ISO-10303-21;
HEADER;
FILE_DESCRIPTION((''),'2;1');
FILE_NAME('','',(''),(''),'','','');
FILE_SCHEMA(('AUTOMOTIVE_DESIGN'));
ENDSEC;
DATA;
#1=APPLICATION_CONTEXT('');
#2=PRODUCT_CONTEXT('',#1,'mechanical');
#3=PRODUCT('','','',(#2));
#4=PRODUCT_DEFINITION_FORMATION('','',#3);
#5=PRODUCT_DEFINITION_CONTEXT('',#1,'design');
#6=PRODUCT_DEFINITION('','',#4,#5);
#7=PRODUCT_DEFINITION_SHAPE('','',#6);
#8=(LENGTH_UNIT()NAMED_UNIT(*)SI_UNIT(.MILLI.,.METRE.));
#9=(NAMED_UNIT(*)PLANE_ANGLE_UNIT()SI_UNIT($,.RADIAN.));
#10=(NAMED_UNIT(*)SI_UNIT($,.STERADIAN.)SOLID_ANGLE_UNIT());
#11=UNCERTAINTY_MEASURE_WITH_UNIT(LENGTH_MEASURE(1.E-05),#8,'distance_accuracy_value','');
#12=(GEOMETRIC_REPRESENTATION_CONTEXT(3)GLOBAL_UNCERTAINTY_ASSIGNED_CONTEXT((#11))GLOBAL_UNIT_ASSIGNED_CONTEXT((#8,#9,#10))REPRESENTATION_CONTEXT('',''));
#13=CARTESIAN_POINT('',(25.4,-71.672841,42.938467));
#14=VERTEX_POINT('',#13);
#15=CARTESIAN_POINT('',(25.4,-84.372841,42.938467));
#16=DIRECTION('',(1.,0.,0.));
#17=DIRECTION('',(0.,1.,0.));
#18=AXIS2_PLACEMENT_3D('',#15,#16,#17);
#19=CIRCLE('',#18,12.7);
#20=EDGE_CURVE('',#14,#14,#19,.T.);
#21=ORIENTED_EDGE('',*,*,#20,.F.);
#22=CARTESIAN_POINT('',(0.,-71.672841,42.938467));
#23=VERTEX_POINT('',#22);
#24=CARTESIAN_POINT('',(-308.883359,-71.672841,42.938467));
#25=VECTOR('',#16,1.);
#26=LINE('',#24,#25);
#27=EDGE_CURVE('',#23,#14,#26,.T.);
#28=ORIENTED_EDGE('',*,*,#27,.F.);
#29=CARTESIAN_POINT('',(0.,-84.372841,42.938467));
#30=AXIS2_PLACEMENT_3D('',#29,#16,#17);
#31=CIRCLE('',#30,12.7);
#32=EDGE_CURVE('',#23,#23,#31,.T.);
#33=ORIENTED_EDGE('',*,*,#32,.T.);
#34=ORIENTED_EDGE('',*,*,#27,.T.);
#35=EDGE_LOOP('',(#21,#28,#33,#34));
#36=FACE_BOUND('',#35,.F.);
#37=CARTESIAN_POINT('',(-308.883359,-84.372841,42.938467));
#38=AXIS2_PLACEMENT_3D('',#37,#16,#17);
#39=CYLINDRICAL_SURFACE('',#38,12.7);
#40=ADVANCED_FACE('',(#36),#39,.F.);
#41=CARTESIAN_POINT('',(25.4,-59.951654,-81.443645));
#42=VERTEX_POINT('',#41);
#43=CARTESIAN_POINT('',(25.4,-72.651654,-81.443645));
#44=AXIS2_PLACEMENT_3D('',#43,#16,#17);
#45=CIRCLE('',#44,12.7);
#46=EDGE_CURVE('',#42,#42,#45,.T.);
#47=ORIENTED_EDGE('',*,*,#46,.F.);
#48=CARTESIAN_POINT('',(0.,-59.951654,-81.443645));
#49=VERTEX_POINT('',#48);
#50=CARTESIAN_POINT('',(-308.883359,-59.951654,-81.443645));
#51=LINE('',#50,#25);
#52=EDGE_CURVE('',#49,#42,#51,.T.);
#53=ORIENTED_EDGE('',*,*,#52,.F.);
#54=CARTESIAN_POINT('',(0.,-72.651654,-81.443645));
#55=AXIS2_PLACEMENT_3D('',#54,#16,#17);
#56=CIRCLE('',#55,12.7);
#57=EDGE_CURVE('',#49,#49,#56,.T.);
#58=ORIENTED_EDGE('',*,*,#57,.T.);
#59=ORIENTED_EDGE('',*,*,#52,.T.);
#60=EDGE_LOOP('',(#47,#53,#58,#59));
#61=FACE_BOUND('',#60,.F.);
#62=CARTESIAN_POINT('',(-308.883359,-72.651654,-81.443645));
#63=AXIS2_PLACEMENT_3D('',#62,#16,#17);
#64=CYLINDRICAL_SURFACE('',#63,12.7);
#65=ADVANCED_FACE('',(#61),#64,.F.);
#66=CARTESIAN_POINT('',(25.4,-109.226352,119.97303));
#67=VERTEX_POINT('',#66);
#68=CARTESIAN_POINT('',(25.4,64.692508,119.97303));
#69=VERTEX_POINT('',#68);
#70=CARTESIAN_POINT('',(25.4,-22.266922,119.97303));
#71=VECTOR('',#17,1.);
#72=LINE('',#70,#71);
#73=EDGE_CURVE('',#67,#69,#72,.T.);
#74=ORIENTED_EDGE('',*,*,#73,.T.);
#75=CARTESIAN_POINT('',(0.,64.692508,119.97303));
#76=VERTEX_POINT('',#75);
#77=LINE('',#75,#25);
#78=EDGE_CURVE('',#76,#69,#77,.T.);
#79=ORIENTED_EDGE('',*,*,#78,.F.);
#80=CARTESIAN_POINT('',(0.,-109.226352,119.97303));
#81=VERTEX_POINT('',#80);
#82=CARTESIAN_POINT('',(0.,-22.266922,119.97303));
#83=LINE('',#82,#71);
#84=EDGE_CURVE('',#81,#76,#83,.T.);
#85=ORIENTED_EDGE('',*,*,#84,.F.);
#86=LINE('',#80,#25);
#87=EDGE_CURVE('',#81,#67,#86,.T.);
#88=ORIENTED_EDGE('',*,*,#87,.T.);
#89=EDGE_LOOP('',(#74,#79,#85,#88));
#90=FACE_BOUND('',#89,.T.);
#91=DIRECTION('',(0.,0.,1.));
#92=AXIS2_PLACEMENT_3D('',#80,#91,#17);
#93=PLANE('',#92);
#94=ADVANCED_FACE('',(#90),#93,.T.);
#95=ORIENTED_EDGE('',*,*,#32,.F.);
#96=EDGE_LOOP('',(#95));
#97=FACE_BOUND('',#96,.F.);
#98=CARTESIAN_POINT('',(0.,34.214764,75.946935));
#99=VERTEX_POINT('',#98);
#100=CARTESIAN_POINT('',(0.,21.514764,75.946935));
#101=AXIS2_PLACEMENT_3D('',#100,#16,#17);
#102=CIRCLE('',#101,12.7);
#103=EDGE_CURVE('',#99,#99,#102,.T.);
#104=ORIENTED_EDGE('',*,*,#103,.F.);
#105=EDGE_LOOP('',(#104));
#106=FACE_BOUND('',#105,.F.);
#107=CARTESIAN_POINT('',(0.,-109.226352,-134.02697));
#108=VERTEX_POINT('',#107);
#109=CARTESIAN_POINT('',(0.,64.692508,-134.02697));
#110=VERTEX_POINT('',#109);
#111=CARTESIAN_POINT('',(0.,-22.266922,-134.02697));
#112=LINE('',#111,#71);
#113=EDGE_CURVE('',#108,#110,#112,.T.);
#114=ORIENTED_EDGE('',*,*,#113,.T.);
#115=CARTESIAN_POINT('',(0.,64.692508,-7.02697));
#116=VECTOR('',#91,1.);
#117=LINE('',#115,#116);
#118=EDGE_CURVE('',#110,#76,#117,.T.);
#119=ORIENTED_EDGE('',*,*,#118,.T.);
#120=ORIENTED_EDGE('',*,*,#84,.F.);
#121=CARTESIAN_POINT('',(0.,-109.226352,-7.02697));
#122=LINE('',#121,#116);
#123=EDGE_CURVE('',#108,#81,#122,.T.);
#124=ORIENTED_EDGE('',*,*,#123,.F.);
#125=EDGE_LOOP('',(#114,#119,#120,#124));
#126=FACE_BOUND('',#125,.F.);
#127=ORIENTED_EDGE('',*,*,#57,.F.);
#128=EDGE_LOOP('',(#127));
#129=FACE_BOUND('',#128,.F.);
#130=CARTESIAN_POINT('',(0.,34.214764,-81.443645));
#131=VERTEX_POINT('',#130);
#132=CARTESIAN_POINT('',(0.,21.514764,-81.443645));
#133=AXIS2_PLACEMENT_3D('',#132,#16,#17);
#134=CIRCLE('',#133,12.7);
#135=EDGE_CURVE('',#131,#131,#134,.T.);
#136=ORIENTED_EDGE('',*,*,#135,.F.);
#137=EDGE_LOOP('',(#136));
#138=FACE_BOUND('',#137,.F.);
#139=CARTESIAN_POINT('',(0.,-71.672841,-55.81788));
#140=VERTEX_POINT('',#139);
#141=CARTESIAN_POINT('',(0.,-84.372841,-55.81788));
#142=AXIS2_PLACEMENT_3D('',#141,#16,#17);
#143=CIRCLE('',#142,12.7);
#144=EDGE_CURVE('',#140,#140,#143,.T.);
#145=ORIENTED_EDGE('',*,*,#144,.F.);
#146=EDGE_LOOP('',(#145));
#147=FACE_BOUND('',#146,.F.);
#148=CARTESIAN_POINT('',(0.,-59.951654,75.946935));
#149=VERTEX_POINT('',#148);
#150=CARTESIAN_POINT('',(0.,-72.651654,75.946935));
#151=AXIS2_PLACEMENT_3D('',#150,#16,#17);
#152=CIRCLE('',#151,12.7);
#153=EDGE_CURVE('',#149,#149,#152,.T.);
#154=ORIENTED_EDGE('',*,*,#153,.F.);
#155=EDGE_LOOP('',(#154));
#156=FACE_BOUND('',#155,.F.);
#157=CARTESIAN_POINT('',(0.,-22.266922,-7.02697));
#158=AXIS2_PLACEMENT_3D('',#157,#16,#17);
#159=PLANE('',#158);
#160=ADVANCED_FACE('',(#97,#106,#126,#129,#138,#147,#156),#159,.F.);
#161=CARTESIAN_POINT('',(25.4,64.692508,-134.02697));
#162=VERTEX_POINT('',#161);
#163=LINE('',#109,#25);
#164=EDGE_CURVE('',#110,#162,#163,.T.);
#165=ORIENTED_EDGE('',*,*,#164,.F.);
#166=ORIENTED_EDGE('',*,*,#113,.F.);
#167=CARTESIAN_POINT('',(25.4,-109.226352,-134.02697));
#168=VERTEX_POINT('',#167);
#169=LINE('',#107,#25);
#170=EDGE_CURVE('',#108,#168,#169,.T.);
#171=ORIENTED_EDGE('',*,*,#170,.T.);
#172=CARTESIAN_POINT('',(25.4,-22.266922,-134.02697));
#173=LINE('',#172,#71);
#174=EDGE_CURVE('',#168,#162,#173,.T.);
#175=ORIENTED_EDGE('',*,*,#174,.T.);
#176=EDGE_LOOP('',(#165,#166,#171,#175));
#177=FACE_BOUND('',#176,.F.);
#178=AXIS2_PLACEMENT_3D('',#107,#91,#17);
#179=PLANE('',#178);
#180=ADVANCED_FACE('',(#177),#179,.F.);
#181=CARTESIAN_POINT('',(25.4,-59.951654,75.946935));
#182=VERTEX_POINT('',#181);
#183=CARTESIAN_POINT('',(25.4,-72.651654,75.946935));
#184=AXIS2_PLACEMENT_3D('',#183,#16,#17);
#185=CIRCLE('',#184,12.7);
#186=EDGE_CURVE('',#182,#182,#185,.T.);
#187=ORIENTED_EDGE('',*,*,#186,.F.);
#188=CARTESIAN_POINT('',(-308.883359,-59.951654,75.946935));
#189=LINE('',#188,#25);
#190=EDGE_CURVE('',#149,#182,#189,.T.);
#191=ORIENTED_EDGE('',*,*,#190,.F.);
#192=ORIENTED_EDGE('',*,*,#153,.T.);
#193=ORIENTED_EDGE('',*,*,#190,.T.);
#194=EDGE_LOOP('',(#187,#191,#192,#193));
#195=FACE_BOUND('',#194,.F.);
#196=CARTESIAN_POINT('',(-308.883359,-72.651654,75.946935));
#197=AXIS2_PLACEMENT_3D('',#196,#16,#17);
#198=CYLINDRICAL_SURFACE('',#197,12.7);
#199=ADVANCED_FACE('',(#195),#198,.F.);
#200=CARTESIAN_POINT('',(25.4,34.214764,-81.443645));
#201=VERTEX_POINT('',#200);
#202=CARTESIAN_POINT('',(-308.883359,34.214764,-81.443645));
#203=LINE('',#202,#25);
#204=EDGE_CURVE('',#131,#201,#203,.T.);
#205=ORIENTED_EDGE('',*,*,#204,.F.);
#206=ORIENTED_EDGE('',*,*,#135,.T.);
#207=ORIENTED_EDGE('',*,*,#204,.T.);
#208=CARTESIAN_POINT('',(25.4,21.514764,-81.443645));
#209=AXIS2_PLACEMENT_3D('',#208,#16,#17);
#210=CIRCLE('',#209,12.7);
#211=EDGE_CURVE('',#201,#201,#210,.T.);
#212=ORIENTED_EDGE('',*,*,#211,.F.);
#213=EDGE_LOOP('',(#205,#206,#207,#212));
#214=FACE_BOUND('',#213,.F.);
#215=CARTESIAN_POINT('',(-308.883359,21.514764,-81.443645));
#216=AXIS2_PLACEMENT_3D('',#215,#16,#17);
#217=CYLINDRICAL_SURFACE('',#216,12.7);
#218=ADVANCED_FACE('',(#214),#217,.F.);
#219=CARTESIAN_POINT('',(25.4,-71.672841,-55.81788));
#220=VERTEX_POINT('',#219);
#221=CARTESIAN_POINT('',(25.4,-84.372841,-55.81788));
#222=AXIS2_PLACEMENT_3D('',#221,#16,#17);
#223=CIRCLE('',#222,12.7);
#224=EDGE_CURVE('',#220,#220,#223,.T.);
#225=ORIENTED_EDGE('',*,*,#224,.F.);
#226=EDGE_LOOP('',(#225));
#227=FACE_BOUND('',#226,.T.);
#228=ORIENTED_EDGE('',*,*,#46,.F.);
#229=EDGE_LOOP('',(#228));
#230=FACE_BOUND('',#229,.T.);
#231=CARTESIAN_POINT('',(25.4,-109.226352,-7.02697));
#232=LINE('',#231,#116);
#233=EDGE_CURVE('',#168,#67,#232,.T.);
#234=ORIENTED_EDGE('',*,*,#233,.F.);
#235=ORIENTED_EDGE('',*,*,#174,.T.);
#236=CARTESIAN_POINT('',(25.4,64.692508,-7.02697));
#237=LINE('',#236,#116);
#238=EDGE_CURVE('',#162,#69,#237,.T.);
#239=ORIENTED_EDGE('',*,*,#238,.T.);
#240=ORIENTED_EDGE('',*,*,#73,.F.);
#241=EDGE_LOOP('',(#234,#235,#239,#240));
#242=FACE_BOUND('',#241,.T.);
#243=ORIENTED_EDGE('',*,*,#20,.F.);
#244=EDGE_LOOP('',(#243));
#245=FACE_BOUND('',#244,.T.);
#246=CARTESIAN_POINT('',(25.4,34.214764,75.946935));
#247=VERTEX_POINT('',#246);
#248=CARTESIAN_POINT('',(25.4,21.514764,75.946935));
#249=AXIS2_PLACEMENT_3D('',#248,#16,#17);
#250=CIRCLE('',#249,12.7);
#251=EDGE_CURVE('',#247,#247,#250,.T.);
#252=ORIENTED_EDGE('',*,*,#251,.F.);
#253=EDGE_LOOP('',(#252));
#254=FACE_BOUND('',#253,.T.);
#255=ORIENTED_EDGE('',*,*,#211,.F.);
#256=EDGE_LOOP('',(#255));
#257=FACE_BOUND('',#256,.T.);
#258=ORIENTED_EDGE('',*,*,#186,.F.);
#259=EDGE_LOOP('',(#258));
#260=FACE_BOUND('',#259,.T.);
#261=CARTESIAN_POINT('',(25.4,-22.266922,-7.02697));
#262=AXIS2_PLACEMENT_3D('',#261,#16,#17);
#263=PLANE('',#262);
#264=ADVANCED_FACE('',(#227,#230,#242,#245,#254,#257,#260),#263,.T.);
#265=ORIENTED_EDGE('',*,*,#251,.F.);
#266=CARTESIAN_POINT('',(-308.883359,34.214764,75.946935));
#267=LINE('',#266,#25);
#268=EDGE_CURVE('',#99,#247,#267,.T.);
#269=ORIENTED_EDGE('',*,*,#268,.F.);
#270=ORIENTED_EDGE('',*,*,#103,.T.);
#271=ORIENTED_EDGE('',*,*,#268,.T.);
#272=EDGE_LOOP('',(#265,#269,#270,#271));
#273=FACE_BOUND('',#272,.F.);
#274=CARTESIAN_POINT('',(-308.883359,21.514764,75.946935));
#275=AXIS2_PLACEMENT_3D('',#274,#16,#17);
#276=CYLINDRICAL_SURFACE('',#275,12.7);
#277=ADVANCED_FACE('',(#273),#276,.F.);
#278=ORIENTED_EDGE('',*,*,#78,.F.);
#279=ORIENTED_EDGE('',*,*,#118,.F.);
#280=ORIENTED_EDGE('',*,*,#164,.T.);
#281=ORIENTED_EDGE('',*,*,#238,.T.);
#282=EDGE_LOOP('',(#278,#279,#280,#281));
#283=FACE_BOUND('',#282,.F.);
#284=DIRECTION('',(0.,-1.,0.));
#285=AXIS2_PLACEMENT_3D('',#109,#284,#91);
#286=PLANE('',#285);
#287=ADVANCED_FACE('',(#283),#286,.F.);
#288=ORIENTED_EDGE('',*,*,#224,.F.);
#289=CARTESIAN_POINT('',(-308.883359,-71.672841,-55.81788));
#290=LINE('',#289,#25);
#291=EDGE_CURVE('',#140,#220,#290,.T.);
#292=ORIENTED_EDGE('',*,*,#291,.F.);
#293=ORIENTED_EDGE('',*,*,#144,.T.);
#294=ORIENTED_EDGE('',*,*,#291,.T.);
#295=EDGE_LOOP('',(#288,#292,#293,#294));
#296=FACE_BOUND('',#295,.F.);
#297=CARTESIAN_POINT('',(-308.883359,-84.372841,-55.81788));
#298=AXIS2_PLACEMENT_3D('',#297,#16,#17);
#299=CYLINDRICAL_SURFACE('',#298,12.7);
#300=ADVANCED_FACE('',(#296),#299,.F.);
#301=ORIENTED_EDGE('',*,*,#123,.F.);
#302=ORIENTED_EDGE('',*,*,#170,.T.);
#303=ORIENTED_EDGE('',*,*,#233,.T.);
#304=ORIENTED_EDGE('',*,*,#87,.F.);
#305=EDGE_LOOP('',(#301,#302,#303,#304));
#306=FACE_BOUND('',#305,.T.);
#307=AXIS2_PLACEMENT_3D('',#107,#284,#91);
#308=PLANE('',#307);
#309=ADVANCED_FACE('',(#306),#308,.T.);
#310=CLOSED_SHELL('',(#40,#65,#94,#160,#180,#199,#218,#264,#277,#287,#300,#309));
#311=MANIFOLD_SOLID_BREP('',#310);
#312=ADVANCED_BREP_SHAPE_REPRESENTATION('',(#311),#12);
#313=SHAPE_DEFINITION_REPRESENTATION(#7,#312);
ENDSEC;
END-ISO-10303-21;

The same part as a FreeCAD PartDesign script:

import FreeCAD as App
import Part
import Sketcher

V = App.Vector
Q = App.Units.Quantity


def add_polygon(sketch, points):
    """Adds a closed chain of lines whose ends are joined by coincident constraints."""
    first, n = sketch.GeometryCount, len(points)
    for a, b in zip(points, points[1:] + points[:1]):
        sketch.addGeometry(Part.LineSegment(App.Vector(*a, 0), App.Vector(*b, 0)), False)
    for i in range(n):
        sketch.addConstraint(Sketcher.Constraint("Coincident", first + i, 2, first + (i + 1) % n, 1))

doc = App.newDocument("Part")
body = doc.addObject("PartDesign::Body", "Body")

# Sketch on YZ plane
sketch1 = body.newObject("Sketcher::SketchObject", "Sketch")
sketch1.AttachmentSupport = (doc.getObject("YZ_Plane"), [""])
sketch1.MapMode = "FlatFace"
add_polygon(sketch1, [(-109.226352, 119.97303), (-109.226352, -134.02697), (64.692508, -134.02697), (64.692508, 119.97303)])  # lines 0-3
sketch1.addConstraint([
    Sketcher.Constraint("Vertical", 0),
    Sketcher.Constraint("Horizontal", 1),
    Sketcher.Constraint("Vertical", 2),
    Sketcher.Constraint("Horizontal", 3),
    Sketcher.Constraint("DistanceY", 0, 2, 0, 1, Q("10 in")),
    Sketcher.Constraint("DistanceX", 1, 1, 1, 2, Q("173.918859 mm")),
    Sketcher.Constraint("DistanceX", 0, 2, -1, 1, Q("109.226352 mm")),
    Sketcher.Constraint("DistanceY", 0, 2, -1, 1, Q("134.02697 mm")),
])
pad1 = body.newObject("PartDesign::Pad", "Pad")
pad1.Profile = sketch1
pad1.Length = Q("1 in")

# Sketch on YZ plane
sketch2 = body.newObject("Sketcher::SketchObject", "Sketch001")
sketch2.AttachmentSupport = (doc.getObject("YZ_Plane"), [""])
sketch2.MapMode = "FlatFace"
sketch2.addGeometry([
    Part.Circle(V(21.514764, -81.443645, 0), V(0, 0, 1), 12.7),
    Part.Circle(V(-72.651654, -81.443645, 0), V(0, 0, 1), 12.7),
    Part.Circle(V(21.514764, 75.946935, 0), V(0, 0, 1), 12.7),
    Part.Circle(V(-72.651654, 75.946935, 0), V(0, 0, 1), 12.7),
], False)
sketch2.addConstraint([
    Sketcher.Constraint("Equal", 0, 1),
    Sketcher.Constraint("Equal", 1, 2),
    Sketcher.Constraint("Equal", 2, 3),
    Sketcher.Constraint("Horizontal", 0, 3, 1, 3),
    Sketcher.Constraint("Horizontal", 2, 3, 3, 3),
    Sketcher.Constraint("Vertical", 0, 3, 2, 3),
    Sketcher.Constraint("Vertical", 1, 3, 3, 3),
    Sketcher.Constraint("Diameter", 0, Q("1 in")),
    Sketcher.Constraint("DistanceY", 0, 3, 2, 3, Q("157.39058 mm")),
    Sketcher.Constraint("DistanceX", -1, 1, 0, 3, Q("21.514764 mm")),
    Sketcher.Constraint("DistanceY", 0, 3, -1, 1, Q("81.443645 mm")),
    Sketcher.Constraint("DistanceX", 1, 3, -1, 1, Q("72.651654 mm")),
])
doc.recompute()
hole = body.newObject("PartDesign::Hole", "Hole")
hole.Profile = sketch2
hole.ThreadType = "None"
hole.Diameter = Q("1 in")
hole.DepthType = "ThroughAll"
hole.Reversed = True

# Sketch on YZ plane
sketch3 = body.newObject("Sketcher::SketchObject", "Sketch002")
sketch3.AttachmentSupport = (doc.getObject("YZ_Plane"), [""])
sketch3.MapMode = "FlatFace"
sketch3.addGeometry([
    Part.Circle(V(-84.372841, -55.81788, 0), V(0, 0, 1), 12.7),
    Part.Circle(V(-84.372841, 42.938467, 0), V(0, 0, 1), 12.7),
], False)
sketch3.addConstraint([
    Sketcher.Constraint("Equal", 0, 1),
    Sketcher.Constraint("Vertical", 0, 3, 1, 3),
    Sketcher.Constraint("Diameter", 0, Q("1 in")),
    Sketcher.Constraint("DistanceX", 0, 3, -1, 1, Q("84.372841 mm")),
    Sketcher.Constraint("DistanceY", 0, 3, -1, 1, Q("55.81788 mm")),
    Sketcher.Constraint("DistanceY", -1, 1, 1, 3, Q("42.938467 mm")),
])
doc.recompute()
hole2 = body.newObject("PartDesign::Hole", "Hole001")
hole2.Profile = sketch3
hole2.ThreadType = "None"
hole2.Diameter = Q("1 in")
hole2.DepthType = "ThroughAll"
hole2.Reversed = True

doc.recompute()
